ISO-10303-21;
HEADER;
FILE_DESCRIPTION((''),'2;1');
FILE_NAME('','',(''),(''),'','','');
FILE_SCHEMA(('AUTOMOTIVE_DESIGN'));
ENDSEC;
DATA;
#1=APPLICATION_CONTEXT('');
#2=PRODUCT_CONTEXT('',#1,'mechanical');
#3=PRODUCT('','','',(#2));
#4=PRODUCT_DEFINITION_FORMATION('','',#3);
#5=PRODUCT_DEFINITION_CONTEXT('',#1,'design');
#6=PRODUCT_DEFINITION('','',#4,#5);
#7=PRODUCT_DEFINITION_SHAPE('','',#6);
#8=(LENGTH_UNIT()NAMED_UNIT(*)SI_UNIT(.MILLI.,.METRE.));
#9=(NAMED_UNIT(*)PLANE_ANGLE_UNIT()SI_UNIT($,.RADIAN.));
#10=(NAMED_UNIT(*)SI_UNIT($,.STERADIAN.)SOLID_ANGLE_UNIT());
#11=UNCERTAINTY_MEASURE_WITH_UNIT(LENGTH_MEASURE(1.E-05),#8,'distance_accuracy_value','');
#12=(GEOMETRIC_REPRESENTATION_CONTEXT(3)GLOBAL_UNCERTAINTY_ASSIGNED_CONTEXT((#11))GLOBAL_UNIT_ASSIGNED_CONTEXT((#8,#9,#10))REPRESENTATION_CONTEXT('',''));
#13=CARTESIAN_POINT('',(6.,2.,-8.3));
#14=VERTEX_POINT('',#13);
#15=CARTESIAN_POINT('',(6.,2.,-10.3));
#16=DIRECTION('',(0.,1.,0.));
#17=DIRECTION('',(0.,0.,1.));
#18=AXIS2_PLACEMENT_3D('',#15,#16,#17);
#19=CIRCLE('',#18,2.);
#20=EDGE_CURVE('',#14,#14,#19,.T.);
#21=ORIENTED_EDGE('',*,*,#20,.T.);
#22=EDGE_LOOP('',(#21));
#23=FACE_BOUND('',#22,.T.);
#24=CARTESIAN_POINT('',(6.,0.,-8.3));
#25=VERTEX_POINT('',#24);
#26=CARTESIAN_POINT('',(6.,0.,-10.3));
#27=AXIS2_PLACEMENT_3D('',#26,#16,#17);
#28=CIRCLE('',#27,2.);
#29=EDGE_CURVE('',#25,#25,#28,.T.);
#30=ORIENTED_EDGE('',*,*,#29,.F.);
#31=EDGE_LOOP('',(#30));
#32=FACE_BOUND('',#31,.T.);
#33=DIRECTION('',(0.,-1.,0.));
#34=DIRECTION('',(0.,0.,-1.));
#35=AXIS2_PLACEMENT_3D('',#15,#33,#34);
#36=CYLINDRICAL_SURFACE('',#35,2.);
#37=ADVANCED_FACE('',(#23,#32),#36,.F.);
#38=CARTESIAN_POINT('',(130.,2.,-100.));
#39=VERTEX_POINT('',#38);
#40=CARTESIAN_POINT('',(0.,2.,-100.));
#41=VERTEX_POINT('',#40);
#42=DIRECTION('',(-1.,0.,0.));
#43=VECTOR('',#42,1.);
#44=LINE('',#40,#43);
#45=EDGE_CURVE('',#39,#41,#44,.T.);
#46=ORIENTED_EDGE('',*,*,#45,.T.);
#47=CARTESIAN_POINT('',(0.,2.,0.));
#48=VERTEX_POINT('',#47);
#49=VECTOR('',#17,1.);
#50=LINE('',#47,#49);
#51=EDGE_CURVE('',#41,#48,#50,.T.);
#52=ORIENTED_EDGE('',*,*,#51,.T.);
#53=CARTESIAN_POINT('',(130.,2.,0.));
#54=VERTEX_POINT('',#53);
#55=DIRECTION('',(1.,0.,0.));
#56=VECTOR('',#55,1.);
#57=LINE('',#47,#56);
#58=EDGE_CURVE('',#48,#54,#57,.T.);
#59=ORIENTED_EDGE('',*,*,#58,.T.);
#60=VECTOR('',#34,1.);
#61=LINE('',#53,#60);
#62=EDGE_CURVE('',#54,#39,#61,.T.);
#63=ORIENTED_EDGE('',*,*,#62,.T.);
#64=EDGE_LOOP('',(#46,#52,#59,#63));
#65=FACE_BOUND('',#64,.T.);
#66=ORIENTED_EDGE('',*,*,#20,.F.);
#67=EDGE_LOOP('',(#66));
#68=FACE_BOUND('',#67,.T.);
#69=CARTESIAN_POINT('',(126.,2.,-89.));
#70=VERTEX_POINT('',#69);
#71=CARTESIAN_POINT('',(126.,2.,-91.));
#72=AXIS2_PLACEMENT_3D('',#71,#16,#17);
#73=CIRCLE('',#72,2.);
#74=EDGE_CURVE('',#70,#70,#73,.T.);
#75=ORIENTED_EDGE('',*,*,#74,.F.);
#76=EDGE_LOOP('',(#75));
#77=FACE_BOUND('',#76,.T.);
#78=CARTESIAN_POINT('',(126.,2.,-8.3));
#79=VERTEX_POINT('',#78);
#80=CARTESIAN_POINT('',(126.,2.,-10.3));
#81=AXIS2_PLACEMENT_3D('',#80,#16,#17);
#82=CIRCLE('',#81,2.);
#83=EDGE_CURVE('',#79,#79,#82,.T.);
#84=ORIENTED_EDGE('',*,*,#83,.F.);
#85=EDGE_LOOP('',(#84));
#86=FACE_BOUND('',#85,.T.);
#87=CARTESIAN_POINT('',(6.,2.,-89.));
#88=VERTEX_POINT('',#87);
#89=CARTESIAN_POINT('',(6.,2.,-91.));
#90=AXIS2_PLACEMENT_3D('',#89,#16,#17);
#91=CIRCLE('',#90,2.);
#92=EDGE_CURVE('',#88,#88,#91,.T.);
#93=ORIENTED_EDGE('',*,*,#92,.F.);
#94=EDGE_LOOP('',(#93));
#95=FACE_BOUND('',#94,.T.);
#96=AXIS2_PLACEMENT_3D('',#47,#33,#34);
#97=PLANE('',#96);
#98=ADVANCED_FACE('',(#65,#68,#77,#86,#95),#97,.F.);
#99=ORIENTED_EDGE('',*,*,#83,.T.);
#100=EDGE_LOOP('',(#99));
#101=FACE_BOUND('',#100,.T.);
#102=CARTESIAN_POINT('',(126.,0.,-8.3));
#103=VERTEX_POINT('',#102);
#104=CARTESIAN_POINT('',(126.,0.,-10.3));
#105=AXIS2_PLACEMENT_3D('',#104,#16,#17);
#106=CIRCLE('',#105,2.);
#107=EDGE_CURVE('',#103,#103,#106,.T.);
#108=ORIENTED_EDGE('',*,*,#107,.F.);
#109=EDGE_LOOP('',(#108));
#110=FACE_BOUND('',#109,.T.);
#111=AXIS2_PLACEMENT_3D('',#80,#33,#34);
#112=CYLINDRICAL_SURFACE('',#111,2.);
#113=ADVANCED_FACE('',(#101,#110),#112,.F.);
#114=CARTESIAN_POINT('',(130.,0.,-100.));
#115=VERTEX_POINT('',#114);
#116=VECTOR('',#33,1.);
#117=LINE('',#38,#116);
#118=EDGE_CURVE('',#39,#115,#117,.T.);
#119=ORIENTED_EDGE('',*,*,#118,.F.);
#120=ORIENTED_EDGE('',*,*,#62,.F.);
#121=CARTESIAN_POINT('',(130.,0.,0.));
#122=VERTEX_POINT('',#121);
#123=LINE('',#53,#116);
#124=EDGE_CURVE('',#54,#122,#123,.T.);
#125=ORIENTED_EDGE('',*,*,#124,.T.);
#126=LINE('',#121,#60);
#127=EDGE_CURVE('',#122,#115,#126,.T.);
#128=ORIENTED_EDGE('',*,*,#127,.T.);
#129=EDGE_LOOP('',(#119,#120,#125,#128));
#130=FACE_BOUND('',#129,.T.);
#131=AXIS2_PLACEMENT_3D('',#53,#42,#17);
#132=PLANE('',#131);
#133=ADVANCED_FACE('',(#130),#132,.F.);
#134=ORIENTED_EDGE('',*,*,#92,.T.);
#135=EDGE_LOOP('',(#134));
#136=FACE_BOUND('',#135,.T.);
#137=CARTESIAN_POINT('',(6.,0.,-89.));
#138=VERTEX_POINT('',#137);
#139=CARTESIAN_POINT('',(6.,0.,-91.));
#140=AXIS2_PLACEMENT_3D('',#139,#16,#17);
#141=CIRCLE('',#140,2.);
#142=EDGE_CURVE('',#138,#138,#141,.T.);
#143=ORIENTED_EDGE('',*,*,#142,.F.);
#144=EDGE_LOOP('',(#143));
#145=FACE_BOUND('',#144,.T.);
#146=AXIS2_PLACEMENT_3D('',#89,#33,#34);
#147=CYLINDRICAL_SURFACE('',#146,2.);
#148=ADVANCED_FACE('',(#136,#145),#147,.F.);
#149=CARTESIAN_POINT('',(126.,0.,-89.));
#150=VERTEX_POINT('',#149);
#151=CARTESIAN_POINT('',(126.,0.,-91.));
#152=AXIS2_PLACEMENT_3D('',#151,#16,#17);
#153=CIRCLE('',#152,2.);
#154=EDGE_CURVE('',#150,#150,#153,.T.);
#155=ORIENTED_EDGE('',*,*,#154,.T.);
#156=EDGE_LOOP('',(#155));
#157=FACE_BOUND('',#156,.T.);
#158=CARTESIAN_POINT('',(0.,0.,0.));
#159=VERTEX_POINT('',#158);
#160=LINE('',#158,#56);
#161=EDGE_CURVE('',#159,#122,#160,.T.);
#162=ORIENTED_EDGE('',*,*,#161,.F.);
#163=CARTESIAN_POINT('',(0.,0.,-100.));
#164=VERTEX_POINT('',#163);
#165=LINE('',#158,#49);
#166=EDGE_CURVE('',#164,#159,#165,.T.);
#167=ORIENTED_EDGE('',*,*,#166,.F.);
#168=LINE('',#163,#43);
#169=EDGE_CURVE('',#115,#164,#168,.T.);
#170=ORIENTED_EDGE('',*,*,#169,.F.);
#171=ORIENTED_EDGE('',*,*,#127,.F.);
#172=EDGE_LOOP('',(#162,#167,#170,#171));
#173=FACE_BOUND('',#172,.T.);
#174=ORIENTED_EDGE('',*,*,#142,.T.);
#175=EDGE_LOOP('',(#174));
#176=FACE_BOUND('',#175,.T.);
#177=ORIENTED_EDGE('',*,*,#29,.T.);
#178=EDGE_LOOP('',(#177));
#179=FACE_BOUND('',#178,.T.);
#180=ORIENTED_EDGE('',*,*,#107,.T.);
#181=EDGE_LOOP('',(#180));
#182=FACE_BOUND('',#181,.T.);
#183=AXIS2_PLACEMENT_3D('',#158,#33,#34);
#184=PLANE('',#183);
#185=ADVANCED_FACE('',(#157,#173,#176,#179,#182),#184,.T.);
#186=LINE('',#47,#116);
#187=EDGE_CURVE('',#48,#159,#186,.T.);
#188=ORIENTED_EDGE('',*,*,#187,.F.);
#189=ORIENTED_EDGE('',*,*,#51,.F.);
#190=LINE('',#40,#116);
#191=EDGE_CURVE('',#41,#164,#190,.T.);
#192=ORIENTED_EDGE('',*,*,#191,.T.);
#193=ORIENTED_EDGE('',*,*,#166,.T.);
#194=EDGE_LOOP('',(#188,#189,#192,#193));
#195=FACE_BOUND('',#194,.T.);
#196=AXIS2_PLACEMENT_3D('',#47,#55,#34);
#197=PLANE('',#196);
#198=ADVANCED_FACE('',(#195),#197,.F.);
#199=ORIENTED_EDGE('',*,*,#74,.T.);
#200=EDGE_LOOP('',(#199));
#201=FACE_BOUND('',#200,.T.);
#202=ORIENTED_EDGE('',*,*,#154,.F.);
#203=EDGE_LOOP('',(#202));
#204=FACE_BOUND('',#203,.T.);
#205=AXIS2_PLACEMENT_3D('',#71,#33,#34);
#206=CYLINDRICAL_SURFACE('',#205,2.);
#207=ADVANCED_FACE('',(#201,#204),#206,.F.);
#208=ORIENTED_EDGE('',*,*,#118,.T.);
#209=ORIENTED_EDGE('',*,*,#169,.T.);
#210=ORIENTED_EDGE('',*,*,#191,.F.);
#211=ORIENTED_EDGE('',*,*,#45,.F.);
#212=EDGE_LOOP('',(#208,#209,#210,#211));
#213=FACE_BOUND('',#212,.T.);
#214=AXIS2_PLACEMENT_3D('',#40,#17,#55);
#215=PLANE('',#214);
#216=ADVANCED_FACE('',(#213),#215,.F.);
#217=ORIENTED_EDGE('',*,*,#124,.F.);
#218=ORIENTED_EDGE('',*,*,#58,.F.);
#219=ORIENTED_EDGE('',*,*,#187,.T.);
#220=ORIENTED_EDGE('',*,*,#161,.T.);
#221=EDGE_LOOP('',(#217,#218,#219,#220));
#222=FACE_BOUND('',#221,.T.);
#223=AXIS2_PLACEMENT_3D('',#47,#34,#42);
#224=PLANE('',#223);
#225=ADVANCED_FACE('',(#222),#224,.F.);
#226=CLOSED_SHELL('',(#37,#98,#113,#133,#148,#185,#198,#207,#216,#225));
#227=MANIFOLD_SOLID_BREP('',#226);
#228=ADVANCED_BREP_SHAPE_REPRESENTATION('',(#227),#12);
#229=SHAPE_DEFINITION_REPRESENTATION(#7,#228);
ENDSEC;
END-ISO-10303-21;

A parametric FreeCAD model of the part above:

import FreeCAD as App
import Part
import Sketcher
from FreeCAD import Vector

doc = App.newDocument("Part")
body = doc.addObject("PartDesign::Body", "Body")

sketch1 = doc.addObject("Sketcher::SketchObject", "Sketch")
body.addObject(sketch1)
sketch1.AttachmentSupport = (doc.XZ_Plane, [""])
sketch1.MapMode = "FlatFace"
sketch1.addGeometry([
    Part.LineSegment(Vector(0, -100, 0), Vector(0, 0, 0)),
    Part.LineSegment(Vector(0, 0, 0), Vector(130, 0, 0)),
    Part.LineSegment(Vector(130, 0, 0), Vector(130, -100, 0)),
    Part.LineSegment(Vector(130, -100, 0), Vector(0, -100, 0)),
    Part.Circle(Vector(6, -10.3, 0), Vector(0, 0, 1), 2),
    Part.Circle(Vector(126, -10.3, 0), Vector(0, 0, 1), 2),
    Part.Circle(Vector(6, -91, 0), Vector(0, 0, 1), 2),
    Part.Circle(Vector(126, -91, 0), Vector(0, 0, 1), 2),
], False)
sketch1.addConstraint([
    Sketcher.Constraint("Coincident", 0, 2, 1, 1),
    Sketcher.Constraint("Coincident", 1, 2, 2, 1),
    Sketcher.Constraint("Coincident", 2, 2, 3, 1),
    Sketcher.Constraint("Coincident", 3, 2, 0, 1),
    Sketcher.Constraint("Vertical", 0),
    Sketcher.Constraint("Horizontal", 1),
    Sketcher.Constraint("Vertical", 2),
    Sketcher.Constraint("Horizontal", 3),
    Sketcher.Constraint("Coincident", 0, 2, -1, 1),
    Sketcher.Constraint("Equal", 4, 5),
    Sketcher.Constraint("Equal", 5, 6),
    Sketcher.Constraint("Equal", 6, 7),
    Sketcher.Constraint("Horizontal", 4, 3, 5, 3),
    Sketcher.Constraint("Horizontal", 6, 3, 7, 3),
    Sketcher.Constraint("Vertical", 4, 3, 6, 3),
    Sketcher.Constraint("Vertical", 5, 3, 7, 3),
    Sketcher.Constraint("Diameter", 4, 4.0),
    Sketcher.Constraint("DistanceX", 1, 1, 1, 2, 130.0),
    Sketcher.Constraint("DistanceY", 0, 1, 0, 2, 100.0),
    Sketcher.Constraint("DistanceX", -1, 1, 4, 3, 6.0),
    Sketcher.Constraint("DistanceX", -1, 1, 5, 3, 126.0),
    Sketcher.Constraint("DistanceY", 6, 3, -1, 1, 91.0),
    Sketcher.Constraint("DistanceY", 4, 3, -1, 1, 10.3),
])
pad1 = doc.addObject("PartDesign::Pad", "Pad")
body.addObject(pad1)
pad1.Profile = sketch1
pad1.Length = 2
pad1.Reversed = True

doc.recompute()
